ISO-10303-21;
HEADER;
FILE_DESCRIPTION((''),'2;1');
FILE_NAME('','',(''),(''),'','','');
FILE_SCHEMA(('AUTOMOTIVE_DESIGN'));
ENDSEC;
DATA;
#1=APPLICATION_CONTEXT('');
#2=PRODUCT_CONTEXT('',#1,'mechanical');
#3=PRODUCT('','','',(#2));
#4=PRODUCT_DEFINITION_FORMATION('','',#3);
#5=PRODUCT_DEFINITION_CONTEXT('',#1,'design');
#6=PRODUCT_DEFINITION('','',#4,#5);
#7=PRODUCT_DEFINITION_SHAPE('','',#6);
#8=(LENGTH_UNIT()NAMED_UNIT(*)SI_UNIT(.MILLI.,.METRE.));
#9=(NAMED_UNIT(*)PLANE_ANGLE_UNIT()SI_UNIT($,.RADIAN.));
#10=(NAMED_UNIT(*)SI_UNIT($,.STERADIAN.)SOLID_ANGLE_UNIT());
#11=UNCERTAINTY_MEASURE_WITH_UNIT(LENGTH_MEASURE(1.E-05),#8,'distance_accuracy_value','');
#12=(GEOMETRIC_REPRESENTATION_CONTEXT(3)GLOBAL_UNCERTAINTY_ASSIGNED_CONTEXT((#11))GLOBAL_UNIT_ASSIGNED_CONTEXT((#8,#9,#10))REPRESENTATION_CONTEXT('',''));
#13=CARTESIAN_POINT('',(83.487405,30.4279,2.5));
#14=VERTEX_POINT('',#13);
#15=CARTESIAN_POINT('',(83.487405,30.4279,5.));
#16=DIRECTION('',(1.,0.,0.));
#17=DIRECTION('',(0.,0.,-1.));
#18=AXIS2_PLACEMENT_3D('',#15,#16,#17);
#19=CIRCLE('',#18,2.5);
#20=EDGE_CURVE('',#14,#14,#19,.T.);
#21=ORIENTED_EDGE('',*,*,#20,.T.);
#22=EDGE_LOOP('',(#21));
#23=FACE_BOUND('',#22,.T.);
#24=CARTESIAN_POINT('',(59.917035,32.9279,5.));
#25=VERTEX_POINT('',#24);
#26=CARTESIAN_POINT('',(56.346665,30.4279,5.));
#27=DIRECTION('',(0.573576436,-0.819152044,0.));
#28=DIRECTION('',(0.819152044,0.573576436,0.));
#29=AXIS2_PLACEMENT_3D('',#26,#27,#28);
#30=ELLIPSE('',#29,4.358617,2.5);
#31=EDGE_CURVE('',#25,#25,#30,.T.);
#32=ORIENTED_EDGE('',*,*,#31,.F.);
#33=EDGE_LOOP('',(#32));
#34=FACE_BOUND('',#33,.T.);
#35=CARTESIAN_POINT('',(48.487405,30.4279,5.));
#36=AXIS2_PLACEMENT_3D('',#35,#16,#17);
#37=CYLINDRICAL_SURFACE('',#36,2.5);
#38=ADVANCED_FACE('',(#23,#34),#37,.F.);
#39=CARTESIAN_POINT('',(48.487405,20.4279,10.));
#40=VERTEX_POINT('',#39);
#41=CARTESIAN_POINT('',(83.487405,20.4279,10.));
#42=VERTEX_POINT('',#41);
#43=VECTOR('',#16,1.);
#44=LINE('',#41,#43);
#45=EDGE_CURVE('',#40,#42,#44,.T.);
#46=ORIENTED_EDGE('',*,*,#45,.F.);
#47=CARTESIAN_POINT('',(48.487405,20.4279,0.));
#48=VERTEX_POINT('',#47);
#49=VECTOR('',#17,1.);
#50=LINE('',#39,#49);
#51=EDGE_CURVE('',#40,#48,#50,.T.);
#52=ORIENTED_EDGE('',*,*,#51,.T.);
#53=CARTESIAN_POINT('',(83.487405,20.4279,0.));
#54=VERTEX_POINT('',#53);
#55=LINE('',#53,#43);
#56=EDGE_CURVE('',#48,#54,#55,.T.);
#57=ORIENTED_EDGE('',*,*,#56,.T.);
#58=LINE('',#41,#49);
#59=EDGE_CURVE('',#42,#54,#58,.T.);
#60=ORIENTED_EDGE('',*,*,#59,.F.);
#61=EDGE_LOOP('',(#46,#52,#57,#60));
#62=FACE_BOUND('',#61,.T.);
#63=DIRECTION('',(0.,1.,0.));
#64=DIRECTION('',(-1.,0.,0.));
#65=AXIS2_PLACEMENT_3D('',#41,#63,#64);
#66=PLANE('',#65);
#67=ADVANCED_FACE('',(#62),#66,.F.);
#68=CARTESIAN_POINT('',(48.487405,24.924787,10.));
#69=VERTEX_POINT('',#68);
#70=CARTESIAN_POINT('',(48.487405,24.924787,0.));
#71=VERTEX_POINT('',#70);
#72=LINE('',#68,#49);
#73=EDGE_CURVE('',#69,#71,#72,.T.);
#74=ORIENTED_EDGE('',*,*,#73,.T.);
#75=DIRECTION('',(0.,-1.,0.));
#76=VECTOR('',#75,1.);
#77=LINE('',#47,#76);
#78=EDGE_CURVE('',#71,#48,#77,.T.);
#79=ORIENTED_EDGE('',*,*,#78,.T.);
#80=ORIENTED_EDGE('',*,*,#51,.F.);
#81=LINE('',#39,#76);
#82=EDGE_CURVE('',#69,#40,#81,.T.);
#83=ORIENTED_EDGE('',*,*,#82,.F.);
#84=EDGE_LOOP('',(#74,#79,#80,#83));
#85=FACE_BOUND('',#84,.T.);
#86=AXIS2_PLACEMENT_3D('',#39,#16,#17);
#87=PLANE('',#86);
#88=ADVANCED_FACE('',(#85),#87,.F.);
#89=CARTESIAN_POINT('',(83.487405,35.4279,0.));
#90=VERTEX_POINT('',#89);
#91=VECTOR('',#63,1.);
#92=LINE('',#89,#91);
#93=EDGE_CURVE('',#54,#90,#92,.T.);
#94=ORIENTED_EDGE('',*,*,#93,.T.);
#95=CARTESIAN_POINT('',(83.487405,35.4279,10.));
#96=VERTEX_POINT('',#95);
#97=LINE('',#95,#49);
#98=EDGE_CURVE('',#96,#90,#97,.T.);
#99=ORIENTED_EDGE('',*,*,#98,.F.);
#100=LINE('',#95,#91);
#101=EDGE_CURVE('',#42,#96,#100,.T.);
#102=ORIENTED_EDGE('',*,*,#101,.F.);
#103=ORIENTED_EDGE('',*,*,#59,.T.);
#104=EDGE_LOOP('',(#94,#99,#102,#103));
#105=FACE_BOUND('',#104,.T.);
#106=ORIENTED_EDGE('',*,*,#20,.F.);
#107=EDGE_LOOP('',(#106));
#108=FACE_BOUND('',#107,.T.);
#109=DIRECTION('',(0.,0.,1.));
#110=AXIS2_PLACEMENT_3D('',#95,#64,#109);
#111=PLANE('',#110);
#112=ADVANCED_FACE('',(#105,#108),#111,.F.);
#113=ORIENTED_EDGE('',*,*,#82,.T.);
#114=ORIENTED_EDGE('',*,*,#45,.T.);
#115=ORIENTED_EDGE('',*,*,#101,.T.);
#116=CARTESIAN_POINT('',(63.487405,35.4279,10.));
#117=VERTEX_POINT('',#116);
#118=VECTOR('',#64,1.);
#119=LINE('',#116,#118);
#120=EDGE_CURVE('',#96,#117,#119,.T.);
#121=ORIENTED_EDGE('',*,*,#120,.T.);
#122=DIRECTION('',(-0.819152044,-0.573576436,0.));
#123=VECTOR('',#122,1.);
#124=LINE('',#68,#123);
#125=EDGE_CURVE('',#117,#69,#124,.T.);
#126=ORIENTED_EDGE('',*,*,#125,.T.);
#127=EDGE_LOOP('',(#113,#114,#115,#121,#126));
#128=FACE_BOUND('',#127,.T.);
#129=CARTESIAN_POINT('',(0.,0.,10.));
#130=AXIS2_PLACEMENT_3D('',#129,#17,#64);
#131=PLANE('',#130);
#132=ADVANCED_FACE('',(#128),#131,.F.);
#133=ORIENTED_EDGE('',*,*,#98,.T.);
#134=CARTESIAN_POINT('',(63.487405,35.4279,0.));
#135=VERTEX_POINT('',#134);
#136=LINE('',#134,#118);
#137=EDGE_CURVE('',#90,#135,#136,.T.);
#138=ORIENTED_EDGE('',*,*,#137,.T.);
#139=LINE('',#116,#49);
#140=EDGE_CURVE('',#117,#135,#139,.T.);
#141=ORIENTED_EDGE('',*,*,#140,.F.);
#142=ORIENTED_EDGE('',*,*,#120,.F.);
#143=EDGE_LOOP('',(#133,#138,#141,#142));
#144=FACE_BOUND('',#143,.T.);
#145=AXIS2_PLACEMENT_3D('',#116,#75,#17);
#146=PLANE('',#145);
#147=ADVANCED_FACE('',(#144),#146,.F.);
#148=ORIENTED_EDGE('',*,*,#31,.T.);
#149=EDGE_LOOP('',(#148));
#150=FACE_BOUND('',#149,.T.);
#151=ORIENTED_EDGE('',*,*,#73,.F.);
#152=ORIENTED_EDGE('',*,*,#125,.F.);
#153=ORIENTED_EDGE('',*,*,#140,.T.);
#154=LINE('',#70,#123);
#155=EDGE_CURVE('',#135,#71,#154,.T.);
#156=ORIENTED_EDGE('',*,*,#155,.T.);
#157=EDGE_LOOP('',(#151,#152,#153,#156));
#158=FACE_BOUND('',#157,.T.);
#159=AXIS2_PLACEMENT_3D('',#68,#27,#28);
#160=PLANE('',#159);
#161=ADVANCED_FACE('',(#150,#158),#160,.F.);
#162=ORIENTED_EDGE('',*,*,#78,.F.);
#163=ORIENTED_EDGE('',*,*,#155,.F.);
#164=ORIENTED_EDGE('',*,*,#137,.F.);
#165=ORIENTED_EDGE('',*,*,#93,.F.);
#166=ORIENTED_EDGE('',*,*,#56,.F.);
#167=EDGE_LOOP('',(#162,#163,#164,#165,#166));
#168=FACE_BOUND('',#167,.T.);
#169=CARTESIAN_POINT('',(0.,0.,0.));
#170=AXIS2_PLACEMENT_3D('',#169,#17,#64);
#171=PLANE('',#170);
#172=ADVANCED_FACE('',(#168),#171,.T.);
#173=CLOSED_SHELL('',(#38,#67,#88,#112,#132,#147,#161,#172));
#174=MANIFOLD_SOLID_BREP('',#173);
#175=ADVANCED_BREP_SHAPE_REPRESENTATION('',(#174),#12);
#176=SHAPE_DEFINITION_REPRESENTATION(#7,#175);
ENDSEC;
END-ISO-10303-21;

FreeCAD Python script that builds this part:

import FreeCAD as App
import Part
import Sketcher
Q = App.Units.Quantity

doc = App.newDocument("Part")
params = doc.addObject("Spreadsheet::Sheet", "Params")
for row, (alias, value) in enumerate([
    ("sketch1_width", "35 mm"),
    ("sketch1_width2", "20 mm"),
    ("sketch1_height", "15 mm"),
    ("pad1_length", "10 mm"),
    ("sketch2_diameter", "5 mm"),
], start=1):
    params.set(f"A{row}", alias)
    params.set(f"B{row}", "=" + value)
    params.setAlias(f"B{row}", alias)

body = doc.addObject("PartDesign::Body", "Body")

# Sketch on XY plane
sketch1 = doc.addObject("Sketcher::SketchObject", "Sketch")
body.addObject(sketch1)
sketch1.AttachmentSupport = (doc.XY_Plane, [""])
sketch1.MapMode = "FlatFace"
sketch1.addGeometry([
    Part.LineSegment(App.Vector(48.487405, 24.924787, 0), App.Vector(48.487405, 20.4279, 0)),  # 0
    Part.LineSegment(App.Vector(48.487405, 20.4279, 0), App.Vector(83.487405, 20.4279, 0)),  # 1
    Part.LineSegment(App.Vector(83.487405, 20.4279, 0), App.Vector(83.487405, 35.4279, 0)),  # 2
    Part.LineSegment(App.Vector(83.487405, 35.4279, 0), App.Vector(63.487405, 35.4279, 0)),  # 3
    Part.LineSegment(App.Vector(63.487405, 35.4279, 0), App.Vector(48.487405, 24.924787, 0)),  # 4
], False)
sketch1.addConstraint([
    Sketcher.Constraint("Coincident", 0, 2, 1, 1),
    Sketcher.Constraint("Coincident", 1, 2, 2, 1),
    Sketcher.Constraint("Coincident", 2, 2, 3, 1),
    Sketcher.Constraint("Coincident", 3, 2, 4, 1),
    Sketcher.Constraint("Coincident", 4, 2, 0, 1),
    Sketcher.Constraint("Vertical", 0),
    Sketcher.Constraint("Horizontal", 1),
    Sketcher.Constraint("Vertical", 2),
    Sketcher.Constraint("Horizontal", 3),
    Sketcher.Constraint("DistanceX", 1, 1, 1, 2, Q("35 mm")),
    Sketcher.Constraint("DistanceX", 3, 2, 3, 1, Q("20 mm")),
    Sketcher.Constraint("DistanceY", 2, 1, 2, 2, Q("15 mm")),
    Sketcher.Constraint("Angle", 4, Q("-145 deg")),
    Sketcher.Constraint("DistanceY", -1, 1, 0, 2, Q("20.4279 mm")),
    Sketcher.Constraint("DistanceX", -1, 1, 0, 2, Q("48.487405 mm")),
])
sketch1.setExpression("Constraints[9]", "Params.sketch1_width")
sketch1.setExpression("Constraints[10]", "Params.sketch1_width2")
sketch1.setExpression("Constraints[11]", "Params.sketch1_height")
pad1 = doc.addObject("PartDesign::Pad", "Pad")
body.addObject(pad1)
pad1.Profile = sketch1
pad1.setExpression("Length", "Params.pad1_length")

# Sketch on YZ plane
sketch2 = doc.addObject("Sketcher::SketchObject", "Sketch001")
body.addObject(sketch2)
sketch2.AttachmentSupport = (doc.YZ_Plane, [""])
sketch2.MapMode = "FlatFace"
sketch2.AttachmentOffset = App.Placement(App.Vector(0, 0, 83.487405), App.Rotation())
sketch2.addGeometry(Part.Circle(App.Vector(30.4279, 5, 0), App.Vector(0, 0, 1), 2.5), False)
sketch2.addConstraint([
    Sketcher.Constraint("Diameter", 0, Q("5 mm")),
    Sketcher.Constraint("DistanceY", -1, 1, 0, 3, Q("5 mm")),
    Sketcher.Constraint("DistanceX", -1, 1, 0, 3, Q("30.4279 mm")),
])
sketch2.setExpression("Constraints[0]", "Params.sketch2_diameter")
pocket1 = doc.addObject("PartDesign::Pocket", "Pocket")
body.addObject(pocket1)
pocket1.Profile = sketch2
pocket1.Type = "ThroughAll"

doc.recompute()
